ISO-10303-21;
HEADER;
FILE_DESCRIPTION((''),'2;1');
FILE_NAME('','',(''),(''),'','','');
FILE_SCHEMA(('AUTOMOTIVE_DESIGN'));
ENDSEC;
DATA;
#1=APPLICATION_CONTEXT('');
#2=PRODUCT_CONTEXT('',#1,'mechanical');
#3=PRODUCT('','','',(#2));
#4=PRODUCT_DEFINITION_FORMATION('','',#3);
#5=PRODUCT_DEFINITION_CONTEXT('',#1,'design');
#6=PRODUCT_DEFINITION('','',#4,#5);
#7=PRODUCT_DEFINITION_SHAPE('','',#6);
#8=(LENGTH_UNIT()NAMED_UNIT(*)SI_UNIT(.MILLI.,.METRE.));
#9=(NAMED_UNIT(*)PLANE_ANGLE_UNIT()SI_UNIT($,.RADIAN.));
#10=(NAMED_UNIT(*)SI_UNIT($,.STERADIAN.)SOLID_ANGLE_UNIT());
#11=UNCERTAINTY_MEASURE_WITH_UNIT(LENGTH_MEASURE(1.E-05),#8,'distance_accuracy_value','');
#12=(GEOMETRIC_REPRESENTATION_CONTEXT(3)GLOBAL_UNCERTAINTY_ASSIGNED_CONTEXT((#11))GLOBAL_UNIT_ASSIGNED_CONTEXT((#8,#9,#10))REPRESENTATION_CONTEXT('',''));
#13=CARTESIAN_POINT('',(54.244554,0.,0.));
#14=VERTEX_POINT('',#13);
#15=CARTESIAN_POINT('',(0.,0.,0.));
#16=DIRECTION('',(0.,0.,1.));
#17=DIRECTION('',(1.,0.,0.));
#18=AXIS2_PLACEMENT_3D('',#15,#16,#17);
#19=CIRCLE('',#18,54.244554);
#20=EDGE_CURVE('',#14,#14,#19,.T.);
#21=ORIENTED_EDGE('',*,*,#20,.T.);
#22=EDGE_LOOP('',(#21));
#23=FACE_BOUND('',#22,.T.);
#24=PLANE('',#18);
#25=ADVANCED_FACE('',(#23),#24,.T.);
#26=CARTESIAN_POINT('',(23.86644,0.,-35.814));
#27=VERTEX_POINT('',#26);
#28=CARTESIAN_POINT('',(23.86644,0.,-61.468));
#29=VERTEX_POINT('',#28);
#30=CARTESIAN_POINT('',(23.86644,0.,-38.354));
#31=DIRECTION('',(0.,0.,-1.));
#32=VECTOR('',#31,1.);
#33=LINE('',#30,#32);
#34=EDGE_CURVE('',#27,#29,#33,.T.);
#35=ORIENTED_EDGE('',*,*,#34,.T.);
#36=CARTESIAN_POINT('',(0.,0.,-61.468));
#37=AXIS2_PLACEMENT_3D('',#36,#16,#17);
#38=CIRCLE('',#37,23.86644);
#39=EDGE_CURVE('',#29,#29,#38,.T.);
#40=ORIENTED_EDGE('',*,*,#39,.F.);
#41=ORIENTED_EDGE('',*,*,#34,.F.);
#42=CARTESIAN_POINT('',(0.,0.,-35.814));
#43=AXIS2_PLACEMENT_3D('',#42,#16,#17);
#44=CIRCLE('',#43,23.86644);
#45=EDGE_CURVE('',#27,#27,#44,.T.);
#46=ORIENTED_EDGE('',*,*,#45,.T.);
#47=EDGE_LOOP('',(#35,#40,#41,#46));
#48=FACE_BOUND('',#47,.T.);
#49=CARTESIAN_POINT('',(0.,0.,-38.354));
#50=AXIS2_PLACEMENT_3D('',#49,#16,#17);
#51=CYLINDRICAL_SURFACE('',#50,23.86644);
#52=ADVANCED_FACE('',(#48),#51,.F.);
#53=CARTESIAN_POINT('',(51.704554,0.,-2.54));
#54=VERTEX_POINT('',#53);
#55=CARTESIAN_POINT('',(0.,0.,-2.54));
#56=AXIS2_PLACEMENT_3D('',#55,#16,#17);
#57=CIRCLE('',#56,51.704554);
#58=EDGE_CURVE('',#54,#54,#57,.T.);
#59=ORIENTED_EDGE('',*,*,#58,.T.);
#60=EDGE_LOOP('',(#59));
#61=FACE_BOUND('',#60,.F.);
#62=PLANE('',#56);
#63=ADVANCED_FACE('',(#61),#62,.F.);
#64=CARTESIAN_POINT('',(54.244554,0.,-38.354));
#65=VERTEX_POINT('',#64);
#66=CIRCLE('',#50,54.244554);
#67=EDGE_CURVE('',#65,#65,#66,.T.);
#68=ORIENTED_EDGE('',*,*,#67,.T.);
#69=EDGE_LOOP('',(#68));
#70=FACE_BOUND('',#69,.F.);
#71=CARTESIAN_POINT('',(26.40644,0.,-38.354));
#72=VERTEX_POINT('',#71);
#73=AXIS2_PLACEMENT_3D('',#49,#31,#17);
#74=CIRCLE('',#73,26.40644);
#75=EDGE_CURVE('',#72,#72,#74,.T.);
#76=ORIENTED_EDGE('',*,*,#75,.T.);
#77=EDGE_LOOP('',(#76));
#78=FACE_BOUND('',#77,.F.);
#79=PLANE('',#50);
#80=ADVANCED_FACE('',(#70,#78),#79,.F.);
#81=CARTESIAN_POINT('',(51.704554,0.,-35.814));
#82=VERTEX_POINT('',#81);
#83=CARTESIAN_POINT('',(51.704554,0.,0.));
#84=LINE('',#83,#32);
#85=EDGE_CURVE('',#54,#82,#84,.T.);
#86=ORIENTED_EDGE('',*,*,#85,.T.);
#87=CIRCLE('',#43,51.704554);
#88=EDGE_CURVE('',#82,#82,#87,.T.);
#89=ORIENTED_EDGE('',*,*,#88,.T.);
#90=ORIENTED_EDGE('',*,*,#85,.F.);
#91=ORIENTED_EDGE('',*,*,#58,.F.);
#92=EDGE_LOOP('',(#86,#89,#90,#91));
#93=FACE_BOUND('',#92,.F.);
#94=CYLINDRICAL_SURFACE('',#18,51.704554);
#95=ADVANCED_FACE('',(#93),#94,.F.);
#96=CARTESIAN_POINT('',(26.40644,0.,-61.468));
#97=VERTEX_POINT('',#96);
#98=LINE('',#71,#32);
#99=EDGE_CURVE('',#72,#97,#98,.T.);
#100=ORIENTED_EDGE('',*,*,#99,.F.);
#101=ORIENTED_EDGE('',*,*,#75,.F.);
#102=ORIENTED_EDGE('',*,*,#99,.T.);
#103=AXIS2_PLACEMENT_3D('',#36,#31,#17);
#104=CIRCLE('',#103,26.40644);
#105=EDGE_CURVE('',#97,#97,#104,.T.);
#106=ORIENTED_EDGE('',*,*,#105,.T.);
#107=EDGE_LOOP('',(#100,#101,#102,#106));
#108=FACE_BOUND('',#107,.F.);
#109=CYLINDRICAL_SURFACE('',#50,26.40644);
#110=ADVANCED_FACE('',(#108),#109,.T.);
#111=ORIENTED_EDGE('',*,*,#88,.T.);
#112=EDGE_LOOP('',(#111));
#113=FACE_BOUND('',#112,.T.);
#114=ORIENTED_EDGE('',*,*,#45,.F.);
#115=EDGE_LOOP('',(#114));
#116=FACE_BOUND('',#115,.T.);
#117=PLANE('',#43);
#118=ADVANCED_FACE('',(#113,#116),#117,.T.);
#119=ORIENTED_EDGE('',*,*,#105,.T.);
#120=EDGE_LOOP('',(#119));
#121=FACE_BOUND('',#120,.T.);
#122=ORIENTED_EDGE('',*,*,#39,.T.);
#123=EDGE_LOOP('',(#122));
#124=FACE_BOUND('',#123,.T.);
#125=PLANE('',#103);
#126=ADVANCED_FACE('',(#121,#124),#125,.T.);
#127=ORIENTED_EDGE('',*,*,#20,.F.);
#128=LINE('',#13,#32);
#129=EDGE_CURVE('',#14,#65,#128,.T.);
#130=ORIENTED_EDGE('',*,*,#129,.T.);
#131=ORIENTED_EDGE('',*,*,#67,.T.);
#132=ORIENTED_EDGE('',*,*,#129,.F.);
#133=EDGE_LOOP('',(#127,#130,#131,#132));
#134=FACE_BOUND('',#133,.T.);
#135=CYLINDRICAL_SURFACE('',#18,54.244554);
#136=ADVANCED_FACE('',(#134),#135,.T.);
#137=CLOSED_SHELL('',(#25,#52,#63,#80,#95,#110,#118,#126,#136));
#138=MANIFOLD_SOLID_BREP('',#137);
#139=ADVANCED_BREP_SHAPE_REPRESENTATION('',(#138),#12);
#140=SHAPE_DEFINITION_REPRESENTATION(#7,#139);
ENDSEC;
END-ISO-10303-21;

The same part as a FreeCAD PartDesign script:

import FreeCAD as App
import Part
import Sketcher
from FreeCAD import Vector
Q = App.Units.Quantity


def faces_at(feature, points):
    """Names of the faces that lie closest to the given points."""
    faces = feature.Shape.Faces
    near = lambda p: min(range(len(faces)), key=lambda i: faces[i].distToShape(Part.Vertex(*p))[0])
    return sorted({f"Face{near(p) + 1}" for p in points})

doc = App.newDocument("Part")
body = doc.addObject("PartDesign::Body", "Body")

# Sketch on XY plane
sketch1 = body.newObject("Sketcher::SketchObject", "Sketch")
sketch1.AttachmentSupport = (doc.getObject("XY_Plane"), [""])
sketch1.MapMode = "FlatFace"
sketch1.addGeometry(Part.Circle(Vector(0, 0, 0), Vector(0, 0, 1), 54), False)
sketch1.addConstraint(Sketcher.Constraint("Coincident", 0, 3, -1, 1))
sketch1.addConstraint(Sketcher.Constraint("Diameter", 0, Q("108.489109 mm")))
pad1 = body.newObject("PartDesign::Pad", "Pad")
pad1.Profile = sketch1
pad1.Length = Q("1.51 in")
pad1.Reversed = True

# Sketch on XY plane
sketch2 = body.newObject("Sketcher::SketchObject", "Sketch001")
sketch2.AttachmentSupport = (doc.getObject("XY_Plane"), [""])
sketch2.MapMode = "FlatFace"
sketch2.AttachmentOffset = App.Placement(Vector(0, 0, -1.51 * 25.4), App.Rotation())
sketch2.addGeometry(Part.Circle(Vector(0, 0, 0), Vector(0, 0, 1), 26), False)
sketch2.addConstraint(Sketcher.Constraint("Coincident", 0, 3, -1, 1))
sketch2.addConstraint(Sketcher.Constraint("Diameter", 0, Q("52.812881 mm")))
pad2 = body.newObject("PartDesign::Pad", "Pad001")
pad2.Profile = sketch2
pad2.Length = Q("0.91 in")
pad2.Reversed = True
doc.recompute()

thickness = body.newObject("PartDesign::Thickness", "Thickness")
thickness.Base = (pad2, faces_at(pad2, [(0, 0, -61.468)]))
thickness.Value = Q("0.1 in")
thickness.Reversed = True
thickness.Join = "Intersection"

doc.recompute()
